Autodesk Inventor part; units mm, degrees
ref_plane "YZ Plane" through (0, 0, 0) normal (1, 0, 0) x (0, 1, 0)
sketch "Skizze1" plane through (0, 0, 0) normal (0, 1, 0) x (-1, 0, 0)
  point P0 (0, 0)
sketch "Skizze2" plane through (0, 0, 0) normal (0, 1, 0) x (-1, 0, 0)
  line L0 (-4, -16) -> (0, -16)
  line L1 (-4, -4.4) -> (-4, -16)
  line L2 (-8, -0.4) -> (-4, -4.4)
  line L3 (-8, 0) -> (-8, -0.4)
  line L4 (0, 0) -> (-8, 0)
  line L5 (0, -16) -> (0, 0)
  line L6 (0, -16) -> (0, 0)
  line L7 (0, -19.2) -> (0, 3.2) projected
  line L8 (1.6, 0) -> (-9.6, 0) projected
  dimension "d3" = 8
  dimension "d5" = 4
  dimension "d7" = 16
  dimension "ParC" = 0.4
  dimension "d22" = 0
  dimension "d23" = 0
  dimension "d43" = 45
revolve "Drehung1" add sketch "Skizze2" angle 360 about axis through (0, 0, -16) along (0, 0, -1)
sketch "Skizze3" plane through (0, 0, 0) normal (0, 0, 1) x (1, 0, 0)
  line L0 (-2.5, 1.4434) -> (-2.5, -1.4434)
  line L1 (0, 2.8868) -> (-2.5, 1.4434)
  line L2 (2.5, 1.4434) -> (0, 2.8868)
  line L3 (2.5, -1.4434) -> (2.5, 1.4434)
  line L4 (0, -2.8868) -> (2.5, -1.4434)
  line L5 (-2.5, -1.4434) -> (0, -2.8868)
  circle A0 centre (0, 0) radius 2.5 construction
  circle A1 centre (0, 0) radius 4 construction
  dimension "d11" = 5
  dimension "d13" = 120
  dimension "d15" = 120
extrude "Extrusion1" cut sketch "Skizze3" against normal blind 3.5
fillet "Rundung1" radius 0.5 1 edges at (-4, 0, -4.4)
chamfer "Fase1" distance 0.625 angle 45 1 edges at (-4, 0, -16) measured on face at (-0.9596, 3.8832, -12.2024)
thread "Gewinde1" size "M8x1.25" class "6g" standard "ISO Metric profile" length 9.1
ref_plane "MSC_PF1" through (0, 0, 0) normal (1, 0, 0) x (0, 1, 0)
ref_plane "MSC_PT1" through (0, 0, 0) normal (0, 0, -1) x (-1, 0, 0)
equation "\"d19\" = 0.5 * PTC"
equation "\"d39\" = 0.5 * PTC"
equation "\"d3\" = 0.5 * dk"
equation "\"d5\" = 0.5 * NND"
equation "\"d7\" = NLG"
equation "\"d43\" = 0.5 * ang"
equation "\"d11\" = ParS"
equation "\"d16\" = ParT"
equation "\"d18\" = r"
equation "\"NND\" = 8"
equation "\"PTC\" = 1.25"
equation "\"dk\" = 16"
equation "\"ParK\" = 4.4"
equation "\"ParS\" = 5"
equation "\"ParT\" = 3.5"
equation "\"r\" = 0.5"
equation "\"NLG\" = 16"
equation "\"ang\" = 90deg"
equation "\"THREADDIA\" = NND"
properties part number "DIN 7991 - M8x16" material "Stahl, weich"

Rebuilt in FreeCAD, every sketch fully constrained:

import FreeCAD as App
import Part
import Sketcher
from FreeCAD import Vector
Q = App.Units.Quantity


def edges_at(feature, points):
    """Names of the edges that pass closest to the given points."""
    edges = feature.Shape.Edges
    near = lambda p: min(range(len(edges)), key=lambda i: edges[i].distToShape(Part.Vertex(*p))[0])
    return sorted({f"Edge{near(p) + 1}" for p in points})


def add_polygon(sketch, points):
    """Adds a closed chain of lines whose ends are joined by coincident constraints."""
    first, n = sketch.GeometryCount, len(points)
    for a, b in zip(points, points[1:] + points[:1]):
        sketch.addGeometry(Part.LineSegment(App.Vector(*a, 0), App.Vector(*b, 0)), False)
    for i in range(n):
        sketch.addConstraint(Sketcher.Constraint("Coincident", first + i, 2, first + (i + 1) % n, 1))

doc = App.newDocument("Part")
body = doc.addObject("PartDesign::Body", "Body")

# Sketch on XZ plane
sketch1 = doc.addObject("Sketcher::SketchObject", "Sketch")
body.addObject(sketch1)
sketch1.AttachmentSupport = (doc.XZ_Plane, [""])
sketch1.MapMode = "FlatFace"
add_polygon(sketch1, [(4, -4.4), (4, -16), (0, -16), (0, 0), (8, 0), (8, -0.4)])  # lines 0-5
sketch1.addConstraint([
    Sketcher.Constraint("Vertical", 0),
    Sketcher.Constraint("Horizontal", 1),
    Sketcher.Constraint("Vertical", 2),
    Sketcher.Constraint("Horizontal", 3),
    Sketcher.Constraint("Vertical", 4),
    Sketcher.Constraint("Coincident", 2, 2, -1, 1),
    Sketcher.Constraint("DistanceX", 1, 2, 1, 1, Q("4 mm")),
    Sketcher.Constraint("DistanceX", 3, 1, 3, 2, Q("8 mm")),
    Sketcher.Constraint("DistanceY", 2, 1, 2, 2, Q("16 mm")),
    Sketcher.Constraint("DistanceY", 4, 2, 4, 1, Q("0.4 mm")),
    Sketcher.Constraint("DistanceY", 5, 2, 4, 2, Q("4 mm")),
])
revolution = doc.addObject("PartDesign::Revolution", "Revolution")
body.addObject(revolution)
revolution.Profile = sketch1
revolution.ReferenceAxis = (sketch1, ["V_Axis"])
revolution.Angle = 360

# Sketch on XY plane
sketch2 = doc.addObject("Sketcher::SketchObject", "Sketch001")
body.addObject(sketch2)
sketch2.AttachmentSupport = (doc.XY_Plane, [""])
sketch2.MapMode = "FlatFace"
add_polygon(sketch2, [(0, 2.9), (-2.5, 1.4), (-2.5, -1.4), (0, -2.9), (2.5, -1.4), (2.5, 1.4)])  # lines 0-5
sketch2.addConstraint([
    Sketcher.Constraint("Vertical", 1),
    Sketcher.Constraint("Vertical", 4),
    Sketcher.Constraint("Symmetric", 0, 2, 3, 2, -1, 1),
    Sketcher.Constraint("Symmetric", 2, 2, 5, 2, -1, 1),
    Sketcher.Constraint("PointOnObject", 2, 2, -2),
    Sketcher.Constraint("Parallel", 2, 5),
    Sketcher.Constraint("Horizontal", 1, 2, 3, 2),
    Sketcher.Constraint("DistanceX", 1, 2, 3, 2, Q("5 mm")),
    Sketcher.Constraint("Angle", 0, Q("-149.9996 deg")),
    Sketcher.Constraint("DistanceY", 1, 2, 1, 1, Q("2.8868 mm")),
])
pocket1 = doc.addObject("PartDesign::Pocket", "Pocket")
body.addObject(pocket1)
pocket1.Profile = sketch2
pocket1.Length = 3.5
doc.recompute()

fillet = doc.addObject("PartDesign::Fillet", "Fillet")
body.addObject(fillet)
fillet.Base = (pocket1, edges_at(pocket1, [(-4, 0, -4.4)]))
fillet.Radius = 0.5
doc.recompute()

chamfer = doc.addObject("PartDesign::Chamfer", "Chamfer")
body.addObject(chamfer)
chamfer.Base = (fillet, edges_at(fillet, [(-4, 0, -16)]))
chamfer.Size = 0.625

doc.recompute()
